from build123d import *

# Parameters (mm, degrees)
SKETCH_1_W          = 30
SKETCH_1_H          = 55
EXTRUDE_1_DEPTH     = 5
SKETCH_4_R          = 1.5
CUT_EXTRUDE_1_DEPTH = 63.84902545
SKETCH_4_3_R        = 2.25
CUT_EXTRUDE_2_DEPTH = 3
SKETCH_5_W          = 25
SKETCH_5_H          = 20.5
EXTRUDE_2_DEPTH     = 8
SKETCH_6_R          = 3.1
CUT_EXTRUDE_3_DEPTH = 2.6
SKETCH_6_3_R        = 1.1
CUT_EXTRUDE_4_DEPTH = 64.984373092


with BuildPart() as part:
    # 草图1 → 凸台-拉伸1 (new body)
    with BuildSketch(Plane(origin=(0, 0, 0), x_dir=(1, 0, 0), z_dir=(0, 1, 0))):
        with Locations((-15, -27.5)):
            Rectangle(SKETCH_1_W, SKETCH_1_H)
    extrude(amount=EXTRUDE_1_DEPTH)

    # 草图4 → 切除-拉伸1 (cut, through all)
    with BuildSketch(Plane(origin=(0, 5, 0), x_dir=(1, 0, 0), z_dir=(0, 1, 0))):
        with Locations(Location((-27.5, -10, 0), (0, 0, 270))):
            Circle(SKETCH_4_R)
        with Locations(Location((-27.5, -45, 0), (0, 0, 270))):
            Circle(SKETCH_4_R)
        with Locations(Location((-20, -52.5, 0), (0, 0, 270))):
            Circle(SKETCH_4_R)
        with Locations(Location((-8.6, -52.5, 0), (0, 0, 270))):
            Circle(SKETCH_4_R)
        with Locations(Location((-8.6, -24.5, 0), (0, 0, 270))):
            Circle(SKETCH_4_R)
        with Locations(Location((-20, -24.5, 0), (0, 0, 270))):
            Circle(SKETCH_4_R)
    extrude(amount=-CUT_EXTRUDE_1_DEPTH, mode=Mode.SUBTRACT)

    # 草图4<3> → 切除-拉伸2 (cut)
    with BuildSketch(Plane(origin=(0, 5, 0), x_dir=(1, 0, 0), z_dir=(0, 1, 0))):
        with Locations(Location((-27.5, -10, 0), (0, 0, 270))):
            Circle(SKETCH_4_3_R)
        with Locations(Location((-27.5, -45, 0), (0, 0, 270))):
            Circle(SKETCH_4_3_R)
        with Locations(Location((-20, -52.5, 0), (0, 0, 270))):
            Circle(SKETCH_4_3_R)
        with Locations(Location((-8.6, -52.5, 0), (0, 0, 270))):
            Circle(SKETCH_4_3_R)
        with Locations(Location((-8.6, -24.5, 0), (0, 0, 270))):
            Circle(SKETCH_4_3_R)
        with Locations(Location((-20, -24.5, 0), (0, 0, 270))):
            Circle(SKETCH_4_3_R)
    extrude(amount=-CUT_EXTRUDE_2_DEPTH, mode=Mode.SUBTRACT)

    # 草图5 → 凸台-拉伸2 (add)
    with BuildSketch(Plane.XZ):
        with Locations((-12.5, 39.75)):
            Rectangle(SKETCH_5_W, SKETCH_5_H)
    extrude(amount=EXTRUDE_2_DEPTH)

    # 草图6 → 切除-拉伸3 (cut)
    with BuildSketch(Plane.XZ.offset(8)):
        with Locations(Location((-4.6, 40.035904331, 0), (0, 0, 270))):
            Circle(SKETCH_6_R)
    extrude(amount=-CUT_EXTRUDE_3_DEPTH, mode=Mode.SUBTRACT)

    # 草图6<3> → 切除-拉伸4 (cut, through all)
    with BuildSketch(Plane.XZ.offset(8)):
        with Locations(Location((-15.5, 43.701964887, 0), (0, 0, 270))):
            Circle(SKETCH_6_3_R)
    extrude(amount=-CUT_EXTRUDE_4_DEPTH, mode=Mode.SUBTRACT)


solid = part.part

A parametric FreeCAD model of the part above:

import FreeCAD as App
import Part
import Sketcher
from FreeCAD import Vector
Q = App.Units.Quantity

doc = App.newDocument("Part")
params = doc.addObject("Spreadsheet::Sheet", "Params")
for row, (alias, value) in enumerate([
    ("sketch1_width", "30 mm"),
    ("sketch1_height", "55 mm"),
    ("pad1_length", "5 mm"),
    ("sketch2_diameter", "3 mm"),
    ("sketch3_diameter", "4.5 mm"),
    ("pocket2_length", "3 mm"),
    ("sketch4_width", "25 mm"),
    ("sketch4_height", "20.5 mm"),
    ("pad2_length", "8 mm"),
    ("sketch5_diameter", "6.2 mm"),
    ("pocket3_length", "2.6 mm"),
    ("sketch6_diameter", "2.2 mm"),
], start=1):
    params.set(f"A{row}", alias)
    params.set(f"B{row}", "=" + value)
    params.setAlias(f"B{row}", alias)

body = doc.addObject("PartDesign::Body", "Body")

# Sketch on XZ plane
sketch1 = body.newObject("Sketcher::SketchObject", "Sketch")
sketch1.AttachmentSupport = (doc.getObject("XZ_Plane"), [""])
sketch1.MapMode = "FlatFace"
sketch1.addGeometry([
    Part.LineSegment(Vector(-30, 0, 0), Vector(-30, 55, 0)),
    Part.LineSegment(Vector(-30, 55, 0), Vector(0, 55, 0)),
    Part.LineSegment(Vector(0, 55, 0), Vector(0, 0, 0)),
    Part.LineSegment(Vector(0, 0, 0), Vector(-30, 0, 0)),
], False)
sketch1.addConstraint([
    Sketcher.Constraint("Coincident", 0, 2, 1, 1),
    Sketcher.Constraint("Coincident", 1, 2, 2, 1),
    Sketcher.Constraint("Coincident", 2, 2, 3, 1),
    Sketcher.Constraint("Coincident", 3, 2, 0, 1),
    Sketcher.Constraint("Vertical", 0),
    Sketcher.Constraint("Horizontal", 1),
    Sketcher.Constraint("Vertical", 2),
    Sketcher.Constraint("Horizontal", 3),
    Sketcher.Constraint("Coincident", 2, 2, -1, 1),
    Sketcher.Constraint("DistanceX", 1, 1, 1, 2, Q("30 mm")),
    Sketcher.Constraint("DistanceY", 0, 1, 0, 2, Q("55 mm")),
])
sketch1.setExpression("Constraints[9]", "Params.sketch1_width")
sketch1.setExpression("Constraints[10]", "Params.sketch1_height")
pad1 = body.newObject("PartDesign::Pad", "Pad")
pad1.Profile = sketch1
pad1.setExpression("Length", "Params.pad1_length")
pad1.Reversed = True

# Sketch on XZ plane
sketch2 = body.newObject("Sketcher::SketchObject", "Sketch001")
sketch2.AttachmentSupport = (doc.getObject("XZ_Plane"), [""])
sketch2.MapMode = "FlatFace"
sketch2.AttachmentOffset = App.Placement(Vector(0, 0, -5), App.Rotation())
sketch2.addGeometry([
    Part.Circle(Vector(-27.5, 10, 0), Vector(0, 0, 1), 1.5),  # 0
    Part.Circle(Vector(-27.5, 45, 0), Vector(0, 0, 1), 1.5),  # 1
    Part.Circle(Vector(-20, 52.5, 0), Vector(0, 0, 1), 1.5),  # 2
    Part.Circle(Vector(-8.6, 52.5, 0), Vector(0, 0, 1), 1.5),  # 3
    Part.Circle(Vector(-8.6, 24.5, 0), Vector(0, 0, 1), 1.5),  # 4
    Part.Circle(Vector(-20, 24.5, 0), Vector(0, 0, 1), 1.5),  # 5
], False)
sketch2.addConstraint([
    Sketcher.Constraint("Equal", 0, 1),
    Sketcher.Constraint("Equal", 1, 2),
    Sketcher.Constraint("Equal", 2, 3),
    Sketcher.Constraint("Equal", 3, 4),
    Sketcher.Constraint("Equal", 4, 5),
    Sketcher.Constraint("Horizontal", 2, 3, 3, 3),
    Sketcher.Constraint("Horizontal", 4, 3, 5, 3),
    Sketcher.Constraint("Vertical", 0, 3, 1, 3),
    Sketcher.Constraint("Vertical", 3, 3, 4, 3),
    Sketcher.Constraint("Vertical", 2, 3, 5, 3),
    Sketcher.Constraint("Diameter", 0, Q("3 mm")),
    Sketcher.Constraint("DistanceY", -1, 1, 0, 3, Q("10 mm")),
    Sketcher.Constraint("DistanceY", -1, 1, 1, 3, Q("45 mm")),
    Sketcher.Constraint("DistanceX", 2, 3, -1, 1, Q("20 mm")),
    Sketcher.Constraint("DistanceY", 4, 3, 3, 3, Q("28 mm")),
    Sketcher.Constraint("DistanceX", 0, 3, -1, 1, Q("27.5 mm")),
    Sketcher.Constraint("DistanceY", -1, 1, 2, 3, Q("52.5 mm")),
    Sketcher.Constraint("DistanceX", 3, 3, -1, 1, Q("8.6 mm")),
])
sketch2.setExpression("Constraints[10]", "Params.sketch2_diameter")
pocket1 = body.newObject("PartDesign::Pocket", "Pocket")
pocket1.Profile = sketch2
pocket1.Type = "ThroughAll"
pocket1.Reversed = True

# Sketch on XZ plane
sketch3 = body.newObject("Sketcher::SketchObject", "Sketch002")
sketch3.AttachmentSupport = (doc.getObject("XZ_Plane"), [""])
sketch3.MapMode = "FlatFace"
sketch3.AttachmentOffset = App.Placement(Vector(0, 0, -5), App.Rotation())
sketch3.addGeometry([
    Part.Circle(Vector(-27.5, 10, 0), Vector(0, 0, 1), 2.2),  # 0
    Part.Circle(Vector(-27.5, 45, 0), Vector(0, 0, 1), 2.2),  # 1
    Part.Circle(Vector(-20, 52.5, 0), Vector(0, 0, 1), 2.2),  # 2
    Part.Circle(Vector(-8.6, 52.5, 0), Vector(0, 0, 1), 2.2),  # 3
    Part.Circle(Vector(-8.6, 24.5, 0), Vector(0, 0, 1), 2.2),  # 4
    Part.Circle(Vector(-20, 24.5, 0), Vector(0, 0, 1), 2.2),  # 5
], False)
sketch3.addConstraint([
    Sketcher.Constraint("Equal", 0, 1),
    Sketcher.Constraint("Equal", 1, 2),
    Sketcher.Constraint("Equal", 2, 3),
    Sketcher.Constraint("Equal", 3, 4),
    Sketcher.Constraint("Equal", 4, 5),
    Sketcher.Constraint("Horizontal", 2, 3, 3, 3),
    Sketcher.Constraint("Horizontal", 4, 3, 5, 3),
    Sketcher.Constraint("Vertical", 0, 3, 1, 3),
    Sketcher.Constraint("Vertical", 3, 3, 4, 3),
    Sketcher.Constraint("Vertical", 2, 3, 5, 3),
    Sketcher.Constraint("Diameter", 0, Q("4.5 mm")),
    Sketcher.Constraint("DistanceY", -1, 1, 0, 3, Q("10 mm")),
    Sketcher.Constraint("DistanceY", -1, 1, 1, 3, Q("45 mm")),
    Sketcher.Constraint("DistanceX", 2, 3, -1, 1, Q("20 mm")),
    Sketcher.Constraint("DistanceY", 4, 3, 3, 3, Q("28 mm")),
    Sketcher.Constraint("DistanceX", 0, 3, -1, 1, Q("27.5 mm")),
    Sketcher.Constraint("DistanceY", -1, 1, 2, 3, Q("52.5 mm")),
    Sketcher.Constraint("DistanceX", 3, 3, -1, 1, Q("8.6 mm")),
])
sketch3.setExpression("Constraints[10]", "Params.sketch3_diameter")
pocket2 = body.newObject("PartDesign::Pocket", "Pocket001")
pocket2.Profile = sketch3
pocket2.setExpression("Length", "Params.pocket2_length")
pocket2.Reversed = True

# Sketch on XZ plane
sketch4 = body.newObject("Sketcher::SketchObject", "Sketch003")
sketch4.AttachmentSupport = (doc.getObject("XZ_Plane"), [""])
sketch4.MapMode = "FlatFace"
sketch4.addGeometry([
    Part.LineSegment(Vector(-25, 50, 0), Vector(-25, 30, 0)),
    Part.LineSegment(Vector(-25, 30, 0), Vector(0, 30, 0)),
    Part.LineSegment(Vector(0, 30, 0), Vector(0, 50, 0)),
    Part.LineSegment(Vector(0, 50, 0), Vector(-25, 50, 0)),
], False)
sketch4.addConstraint([
    Sketcher.Constraint("Coincident", 0, 2, 1, 1),
    Sketcher.Constraint("Coincident", 1, 2, 2, 1),
    Sketcher.Constraint("Coincident", 2, 2, 3, 1),
    Sketcher.Constraint("Coincident", 3, 2, 0, 1),
    Sketcher.Constraint("Vertical", 0),
    Sketcher.Constraint("Horizontal", 1),
    Sketcher.Constraint("Vertical", 2),
    Sketcher.Constraint("Horizontal", 3),
    Sketcher.Constraint("PointOnObject", 1, 2, -2),
    Sketcher.Constraint("DistanceX", 1, 1, 1, 2, Q("25 mm")),
    Sketcher.Constraint("DistanceY", 0, 2, 0, 1, Q("20.5 mm")),
    Sketcher.Constraint("DistanceY", -1, 1, 2, 2, Q("50 mm")),
])
sketch4.setExpression("Constraints[9]", "Params.sketch4_width")
sketch4.setExpression("Constraints[10]", "Params.sketch4_height")
pad2 = body.newObject("PartDesign::Pad", "Pad001")
pad2.Profile = sketch4
pad2.setExpression("Length", "Params.pad2_length")

# Sketch on XZ plane
sketch5 = body.newObject("Sketcher::SketchObject", "Sketch004")
sketch5.AttachmentSupport = (doc.getObject("XZ_Plane"), [""])
sketch5.MapMode = "FlatFace"
sketch5.AttachmentOffset = App.Placement(Vector(0, 0, 8), App.Rotation())
sketch5.addGeometry(Part.Circle(Vector(-4.6, 40, 0), Vector(0, 0, 1), 3.1), False)
sketch5.addConstraint([
    Sketcher.Constraint("Diameter", 0, Q("6.2 mm")),
    Sketcher.Constraint("DistanceX", 0, 3, -1, 1, Q("4.6 mm")),
    Sketcher.Constraint("DistanceY", -1, 1, 0, 3, Q("40.035904 mm")),
])
sketch5.setExpression("Constraints[0]", "Params.sketch5_diameter")
pocket3 = body.newObject("PartDesign::Pocket", "Pocket002")
pocket3.Profile = sketch5
pocket3.setExpression("Length", "Params.pocket3_length")

# Sketch on XZ plane
sketch6 = body.newObject("Sketcher::SketchObject", "Sketch005")
sketch6.AttachmentSupport = (doc.getObject("XZ_Plane"), [""])
sketch6.MapMode = "FlatFace"
sketch6.AttachmentOffset = App.Placement(Vector(0, 0, 8), App.Rotation())
sketch6.addGeometry(Part.Circle(Vector(-15.5, 43.7, 0), Vector(0, 0, 1), 1.1), False)
sketch6.addConstraint([
    Sketcher.Constraint("Diameter", 0, Q("2.2 mm")),
    Sketcher.Constraint("DistanceX", 0, 3, -1, 1, Q("15.5 mm")),
    Sketcher.Constraint("DistanceY", -1, 1, 0, 3, Q("43.701965 mm")),
])
sketch6.setExpression("Constraints[0]", "Params.sketch6_diameter")
pocket4 = body.newObject("PartDesign::Pocket", "Pocket003")
pocket4.Profile = sketch6
pocket4.Type = "ThroughAll"

doc.recompute()
